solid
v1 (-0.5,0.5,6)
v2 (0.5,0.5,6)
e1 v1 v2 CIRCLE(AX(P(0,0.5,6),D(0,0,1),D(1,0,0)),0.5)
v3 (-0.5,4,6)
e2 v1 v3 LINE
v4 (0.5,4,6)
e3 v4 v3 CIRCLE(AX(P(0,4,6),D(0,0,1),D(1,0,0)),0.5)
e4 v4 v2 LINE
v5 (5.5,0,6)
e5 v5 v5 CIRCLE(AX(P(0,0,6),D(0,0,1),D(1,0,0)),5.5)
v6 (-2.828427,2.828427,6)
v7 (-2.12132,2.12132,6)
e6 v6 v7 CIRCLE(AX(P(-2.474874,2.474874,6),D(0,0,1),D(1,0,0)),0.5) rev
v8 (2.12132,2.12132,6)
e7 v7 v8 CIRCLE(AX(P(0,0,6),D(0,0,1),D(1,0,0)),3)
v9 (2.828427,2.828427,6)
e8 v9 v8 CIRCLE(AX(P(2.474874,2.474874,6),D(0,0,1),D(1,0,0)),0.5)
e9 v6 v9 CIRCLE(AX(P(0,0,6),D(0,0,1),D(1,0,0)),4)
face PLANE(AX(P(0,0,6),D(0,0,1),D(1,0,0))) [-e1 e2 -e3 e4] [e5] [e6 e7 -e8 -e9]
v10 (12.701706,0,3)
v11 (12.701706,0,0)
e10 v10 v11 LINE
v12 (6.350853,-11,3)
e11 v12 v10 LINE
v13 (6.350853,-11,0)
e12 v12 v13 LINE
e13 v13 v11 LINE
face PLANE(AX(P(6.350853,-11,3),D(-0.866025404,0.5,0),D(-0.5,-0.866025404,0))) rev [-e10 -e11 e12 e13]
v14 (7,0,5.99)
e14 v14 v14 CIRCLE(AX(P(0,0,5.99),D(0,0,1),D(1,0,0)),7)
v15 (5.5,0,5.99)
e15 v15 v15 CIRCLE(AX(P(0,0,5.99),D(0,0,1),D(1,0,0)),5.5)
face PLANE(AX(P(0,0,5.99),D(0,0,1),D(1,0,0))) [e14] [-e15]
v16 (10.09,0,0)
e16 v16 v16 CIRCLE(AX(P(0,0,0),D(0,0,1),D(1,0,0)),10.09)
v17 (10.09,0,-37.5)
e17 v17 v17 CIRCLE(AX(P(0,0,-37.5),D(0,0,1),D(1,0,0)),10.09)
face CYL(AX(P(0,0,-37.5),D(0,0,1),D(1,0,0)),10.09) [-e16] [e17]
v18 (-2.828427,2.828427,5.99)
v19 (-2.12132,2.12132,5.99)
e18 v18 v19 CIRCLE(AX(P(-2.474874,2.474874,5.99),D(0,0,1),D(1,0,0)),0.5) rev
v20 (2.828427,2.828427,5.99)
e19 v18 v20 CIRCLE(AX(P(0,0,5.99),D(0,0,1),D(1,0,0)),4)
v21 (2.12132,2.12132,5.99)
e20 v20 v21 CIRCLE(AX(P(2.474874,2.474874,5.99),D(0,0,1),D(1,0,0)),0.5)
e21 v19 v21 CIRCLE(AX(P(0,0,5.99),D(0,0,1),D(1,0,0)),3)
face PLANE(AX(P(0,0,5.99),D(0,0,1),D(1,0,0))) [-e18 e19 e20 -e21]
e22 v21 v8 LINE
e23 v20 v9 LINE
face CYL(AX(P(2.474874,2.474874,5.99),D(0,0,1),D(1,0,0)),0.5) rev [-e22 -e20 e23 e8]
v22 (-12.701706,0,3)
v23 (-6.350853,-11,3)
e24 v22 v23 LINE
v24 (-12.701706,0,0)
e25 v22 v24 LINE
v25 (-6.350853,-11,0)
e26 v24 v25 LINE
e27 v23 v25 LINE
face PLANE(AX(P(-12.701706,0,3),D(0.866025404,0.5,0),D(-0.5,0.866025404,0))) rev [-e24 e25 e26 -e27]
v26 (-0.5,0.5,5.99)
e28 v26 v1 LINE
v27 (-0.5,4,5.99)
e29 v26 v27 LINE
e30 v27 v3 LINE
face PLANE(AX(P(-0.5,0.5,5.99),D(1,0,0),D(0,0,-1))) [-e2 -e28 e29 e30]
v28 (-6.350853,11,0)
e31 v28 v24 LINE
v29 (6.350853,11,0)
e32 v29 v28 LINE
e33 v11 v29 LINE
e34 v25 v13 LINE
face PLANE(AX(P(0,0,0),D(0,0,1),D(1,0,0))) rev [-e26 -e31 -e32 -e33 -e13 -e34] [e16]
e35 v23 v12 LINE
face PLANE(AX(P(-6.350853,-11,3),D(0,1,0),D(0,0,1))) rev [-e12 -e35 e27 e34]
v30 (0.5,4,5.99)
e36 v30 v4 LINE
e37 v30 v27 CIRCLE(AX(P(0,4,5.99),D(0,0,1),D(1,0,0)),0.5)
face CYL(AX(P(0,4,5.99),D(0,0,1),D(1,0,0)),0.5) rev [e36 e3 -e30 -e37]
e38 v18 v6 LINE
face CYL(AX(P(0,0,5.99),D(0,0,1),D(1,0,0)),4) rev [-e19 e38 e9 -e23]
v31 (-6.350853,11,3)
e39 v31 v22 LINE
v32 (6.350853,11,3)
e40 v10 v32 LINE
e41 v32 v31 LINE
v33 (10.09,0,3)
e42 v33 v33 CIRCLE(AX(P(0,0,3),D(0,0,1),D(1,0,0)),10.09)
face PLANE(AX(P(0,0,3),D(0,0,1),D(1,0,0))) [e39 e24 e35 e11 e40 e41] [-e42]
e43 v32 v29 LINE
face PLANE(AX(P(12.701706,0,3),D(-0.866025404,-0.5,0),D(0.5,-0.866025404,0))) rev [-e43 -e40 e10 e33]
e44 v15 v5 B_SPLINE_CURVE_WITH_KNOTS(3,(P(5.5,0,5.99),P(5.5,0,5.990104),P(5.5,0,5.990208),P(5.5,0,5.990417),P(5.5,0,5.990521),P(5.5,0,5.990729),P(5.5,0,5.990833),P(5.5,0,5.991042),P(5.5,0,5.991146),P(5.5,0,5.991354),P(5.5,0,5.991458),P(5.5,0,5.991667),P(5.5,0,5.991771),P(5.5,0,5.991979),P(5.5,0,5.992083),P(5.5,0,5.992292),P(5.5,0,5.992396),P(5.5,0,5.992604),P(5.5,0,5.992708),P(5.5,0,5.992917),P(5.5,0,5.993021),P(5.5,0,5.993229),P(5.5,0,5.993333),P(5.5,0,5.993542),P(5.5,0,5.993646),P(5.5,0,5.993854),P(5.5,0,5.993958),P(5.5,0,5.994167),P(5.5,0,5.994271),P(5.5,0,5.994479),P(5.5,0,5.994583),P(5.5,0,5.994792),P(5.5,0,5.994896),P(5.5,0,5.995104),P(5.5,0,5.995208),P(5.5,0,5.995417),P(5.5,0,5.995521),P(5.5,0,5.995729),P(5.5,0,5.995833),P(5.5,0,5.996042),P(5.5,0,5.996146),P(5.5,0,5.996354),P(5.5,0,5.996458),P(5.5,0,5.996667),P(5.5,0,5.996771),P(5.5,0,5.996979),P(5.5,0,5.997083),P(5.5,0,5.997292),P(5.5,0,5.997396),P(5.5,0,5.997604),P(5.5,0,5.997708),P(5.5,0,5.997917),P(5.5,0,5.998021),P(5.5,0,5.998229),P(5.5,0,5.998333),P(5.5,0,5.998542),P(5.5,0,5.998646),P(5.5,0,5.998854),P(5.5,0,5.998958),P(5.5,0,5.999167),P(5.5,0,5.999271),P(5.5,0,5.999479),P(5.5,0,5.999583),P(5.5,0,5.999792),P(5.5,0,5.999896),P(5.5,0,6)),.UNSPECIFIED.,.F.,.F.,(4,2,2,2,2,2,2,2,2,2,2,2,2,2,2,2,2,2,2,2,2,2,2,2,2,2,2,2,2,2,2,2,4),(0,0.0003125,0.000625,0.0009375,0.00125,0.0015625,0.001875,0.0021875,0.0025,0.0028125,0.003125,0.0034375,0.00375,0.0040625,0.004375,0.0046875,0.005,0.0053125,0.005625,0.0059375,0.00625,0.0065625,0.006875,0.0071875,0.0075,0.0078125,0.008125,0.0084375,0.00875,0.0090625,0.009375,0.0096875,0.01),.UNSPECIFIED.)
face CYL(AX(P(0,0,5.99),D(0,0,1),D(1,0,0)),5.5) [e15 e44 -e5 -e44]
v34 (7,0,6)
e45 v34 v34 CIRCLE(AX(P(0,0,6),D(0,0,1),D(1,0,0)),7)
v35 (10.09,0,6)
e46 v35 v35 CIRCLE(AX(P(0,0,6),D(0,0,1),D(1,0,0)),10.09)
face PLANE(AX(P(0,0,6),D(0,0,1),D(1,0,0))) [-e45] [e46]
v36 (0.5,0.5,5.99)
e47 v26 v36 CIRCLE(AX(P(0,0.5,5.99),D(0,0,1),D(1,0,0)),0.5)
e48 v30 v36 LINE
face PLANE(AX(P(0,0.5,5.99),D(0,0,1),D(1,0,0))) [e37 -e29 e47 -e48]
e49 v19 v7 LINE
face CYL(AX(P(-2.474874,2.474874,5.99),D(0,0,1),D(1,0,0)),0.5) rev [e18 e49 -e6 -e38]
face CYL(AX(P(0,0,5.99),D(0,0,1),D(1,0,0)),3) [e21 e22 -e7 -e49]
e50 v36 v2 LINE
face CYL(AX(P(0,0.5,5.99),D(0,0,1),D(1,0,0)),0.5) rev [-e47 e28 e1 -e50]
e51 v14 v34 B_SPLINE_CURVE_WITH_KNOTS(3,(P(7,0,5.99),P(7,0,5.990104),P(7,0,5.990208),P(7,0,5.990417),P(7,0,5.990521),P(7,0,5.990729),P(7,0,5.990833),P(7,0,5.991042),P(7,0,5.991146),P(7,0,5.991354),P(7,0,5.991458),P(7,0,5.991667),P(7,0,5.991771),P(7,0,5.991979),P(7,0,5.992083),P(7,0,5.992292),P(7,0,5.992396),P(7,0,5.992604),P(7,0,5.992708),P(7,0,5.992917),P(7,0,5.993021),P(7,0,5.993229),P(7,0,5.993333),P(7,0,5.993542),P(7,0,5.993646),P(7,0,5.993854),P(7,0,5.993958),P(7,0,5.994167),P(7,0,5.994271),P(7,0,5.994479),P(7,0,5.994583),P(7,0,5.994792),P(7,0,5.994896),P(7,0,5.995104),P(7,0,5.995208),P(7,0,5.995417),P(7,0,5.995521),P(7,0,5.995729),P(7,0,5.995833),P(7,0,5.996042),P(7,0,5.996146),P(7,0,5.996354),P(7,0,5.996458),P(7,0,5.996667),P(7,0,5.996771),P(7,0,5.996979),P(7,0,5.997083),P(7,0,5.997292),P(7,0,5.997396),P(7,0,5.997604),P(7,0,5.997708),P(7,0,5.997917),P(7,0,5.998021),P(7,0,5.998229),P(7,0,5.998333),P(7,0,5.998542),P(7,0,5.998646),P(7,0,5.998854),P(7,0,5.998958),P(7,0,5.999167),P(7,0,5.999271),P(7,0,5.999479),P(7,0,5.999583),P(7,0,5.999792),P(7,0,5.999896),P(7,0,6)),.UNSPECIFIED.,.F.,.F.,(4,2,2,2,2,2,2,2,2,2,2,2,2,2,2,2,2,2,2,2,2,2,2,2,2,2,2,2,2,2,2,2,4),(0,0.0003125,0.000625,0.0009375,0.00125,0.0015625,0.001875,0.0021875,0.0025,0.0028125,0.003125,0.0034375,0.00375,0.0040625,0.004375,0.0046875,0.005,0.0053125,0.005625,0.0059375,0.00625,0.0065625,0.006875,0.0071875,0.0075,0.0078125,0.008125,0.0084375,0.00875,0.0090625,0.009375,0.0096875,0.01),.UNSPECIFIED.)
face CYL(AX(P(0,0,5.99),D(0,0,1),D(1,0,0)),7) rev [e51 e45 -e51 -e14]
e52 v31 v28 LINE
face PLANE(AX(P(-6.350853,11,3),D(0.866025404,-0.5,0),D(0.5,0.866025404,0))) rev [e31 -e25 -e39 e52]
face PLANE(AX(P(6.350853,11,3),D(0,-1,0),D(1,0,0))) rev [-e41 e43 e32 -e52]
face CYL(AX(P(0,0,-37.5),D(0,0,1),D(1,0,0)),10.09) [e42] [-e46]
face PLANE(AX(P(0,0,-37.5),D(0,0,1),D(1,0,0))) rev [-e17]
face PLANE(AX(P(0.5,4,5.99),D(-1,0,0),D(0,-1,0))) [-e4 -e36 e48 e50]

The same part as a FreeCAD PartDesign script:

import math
import FreeCAD as App
import Part
import Sketcher
Q = App.Units.Quantity

doc = App.newDocument("Part")
body = doc.addObject("PartDesign::Body", "Body")

sketch1 = body.newObject("Sketcher::SketchObject", "Sketch")
sketch1.AttachmentSupport = (doc.getObject("XY_Plane"), [""])
sketch1.MapMode = "FlatFace"
sketch1.addGeometry(Part.LineSegment(App.Vector(12.701706, 0, 0), App.Vector(6.350853, 11, 0)), False)
sketch1.addGeometry(Part.LineSegment(App.Vector(6.350853, 11, 0), App.Vector(-6.350853, 11, 0)), False)
sketch1.addGeometry(Part.LineSegment(App.Vector(-6.350853, 11, 0), App.Vector(-12.701706, 0, 0)), False)
sketch1.addGeometry(Part.LineSegment(App.Vector(-12.701706, 0, 0), App.Vector(-6.350853, -11, 0)), False)
sketch1.addGeometry(Part.LineSegment(App.Vector(-6.350853, -11, 0), App.Vector(6.350853, -11, 0)), False)
sketch1.addGeometry(Part.LineSegment(App.Vector(6.350853, -11, 0), App.Vector(12.701706, 0, 0)), False)
sketch1.addConstraint(Sketcher.Constraint("Coincident", 0, 2, 1, 1))
sketch1.addConstraint(Sketcher.Constraint("Coincident", 1, 2, 2, 1))
sketch1.addConstraint(Sketcher.Constraint("Coincident", 2, 2, 3, 1))
sketch1.addConstraint(Sketcher.Constraint("Coincident", 3, 2, 4, 1))
sketch1.addConstraint(Sketcher.Constraint("Coincident", 4, 2, 5, 1))
sketch1.addConstraint(Sketcher.Constraint("Coincident", 5, 2, 0, 1))
sketch1.addConstraint(Sketcher.Constraint("Horizontal", 1))
sketch1.addConstraint(Sketcher.Constraint("Horizontal", 4))
sketch1.addConstraint(Sketcher.Constraint("Symmetric", 0, 2, 3, 2, -1, 1))
sketch1.addConstraint(Sketcher.Constraint("Symmetric", 2, 2, 5, 2, -1, 1))
sketch1.addConstraint(Sketcher.Constraint("PointOnObject", 2, 2, -1))
sketch1.addConstraint(Sketcher.Constraint("Parallel", 2, 5))
sketch1.addConstraint(Sketcher.Constraint("Vertical", 1, 2, 3, 2))
sketch1.addConstraint(Sketcher.Constraint("Angle", 0, Q("120 deg")))
sketch1.addConstraint(Sketcher.Constraint("DistanceY", -1, 1, 0, 2, 11.0))
sketch1.addConstraint(Sketcher.Constraint("DistanceX", 1, 2, 1, 1, 12.701706))
pad1 = body.newObject("PartDesign::Pad", "Pad")
pad1.Profile = sketch1
pad1.Length = 3

sketch2 = body.newObject("Sketcher::SketchObject", "Sketch001")
sketch2.AttachmentSupport = (doc.getObject("XY_Plane"), [""])
sketch2.MapMode = "FlatFace"
sketch2.AttachmentOffset = App.Placement(App.Vector(0, 0, 3), App.Rotation())
sketch2.addGeometry(Part.Circle(App.Vector(0, 0, 0), App.Vector(0, 0, 1), 10.09), False)
sketch2.addConstraint(Sketcher.Constraint("Coincident", 0, 3, -1, 1))
sketch2.addConstraint(Sketcher.Constraint("Diameter", 0, 20.18))
pad2 = body.newObject("PartDesign::Pad", "Pad001")
pad2.Profile = sketch2
pad2.Type = "TwoLengths"
pad2.Length = 3
pad2.Length2 = 40.5

sketch3 = body.newObject("Sketcher::SketchObject", "Sketch002")
sketch3.AttachmentSupport = (doc.getObject("XY_Plane"), [""])
sketch3.MapMode = "FlatFace"
sketch3.AttachmentOffset = App.Placement(App.Vector(0, 0, 6), App.Rotation())
sketch3.addGeometry(Part.Circle(App.Vector(0, 0, 0), App.Vector(0, 0, 1), 7), False)
sketch3.addGeometry(Part.Circle(App.Vector(0, 0, 0), App.Vector(0, 0, 1), 5.5), False)
sketch3.addGeometry(Part.ArcOfCircle(Part.Circle(App.Vector(-2.474874, 2.474874, 0), App.Vector(0, 0, 1), 0.5), math.radians(-45), math.radians(135)), False)
sketch3.addGeometry(Part.ArcOfCircle(Part.Circle(App.Vector(0, 0, 0), App.Vector(0, 0, 1), 4), math.radians(135), math.radians(405)), False)
sketch3.addGeometry(Part.ArcOfCircle(Part.Circle(App.Vector(2.474874, 2.474874, 0), App.Vector(0, 0, 1), 0.5), math.radians(45), math.radians(225)), False)
sketch3.addGeometry(Part.ArcOfCircle(Part.Circle(App.Vector(0, 0, 0), App.Vector(0, 0, 1), 3), math.radians(135), math.radians(405)), False)
sketch3.addGeometry(Part.LineSegment(App.Vector(-0.5, 4, 0), App.Vector(-0.5, 0.5, 0)), False)
sketch3.addGeometry(Part.ArcOfCircle(Part.Circle(App.Vector(0, 0.5, 0), App.Vector(0, 0, 1), 0.5), math.radians(180), math.radians(360)), False)
sketch3.addGeometry(Part.LineSegment(App.Vector(0.5, 0.5, 0), App.Vector(0.5, 4, 0)), False)
sketch3.addGeometry(Part.ArcOfCircle(Part.Circle(App.Vector(0, 4, 0), App.Vector(0, 0, 1), 0.5), math.radians(0), math.radians(180)), False)
sketch3.addConstraint(Sketcher.Constraint("Tangent", 2, 2, 3, 1))
sketch3.addConstraint(Sketcher.Constraint("Tangent", 3, 2, 4, 1))
sketch3.addConstraint(Sketcher.Constraint("Tangent", 4, 2, 5, 2))
sketch3.addConstraint(Sketcher.Constraint("Tangent", 5, 1, 2, 1))
sketch3.addConstraint(Sketcher.Constraint("Tangent", 6, 2, 7, 1))
sketch3.addConstraint(Sketcher.Constraint("Tangent", 7, 2, 8, 1))
sketch3.addConstraint(Sketcher.Constraint("Tangent", 8, 2, 9, 1))
sketch3.addConstraint(Sketcher.Constraint("Tangent", 9, 2, 6, 1))
sketch3.addConstraint(Sketcher.Constraint("Vertical", 6))
sketch3.addConstraint(Sketcher.Constraint("Vertical", 8))
sketch3.addConstraint(Sketcher.Constraint("Coincident", 0, 3, -1, 1))
sketch3.addConstraint(Sketcher.Constraint("Coincident", 1, 3, -1, 1))
sketch3.addConstraint(Sketcher.Constraint("Coincident", 3, 3, -1, 1))
sketch3.addConstraint(Sketcher.Constraint("Coincident", 5, 3, -1, 1))
sketch3.addConstraint(Sketcher.Constraint("Equal", 4, 7))
sketch3.addConstraint(Sketcher.Constraint("PointOnObject", 7, 3, -2))
sketch3.addConstraint(Sketcher.Constraint("Horizontal", 2, 3, 4, 3))
sketch3.addConstraint(Sketcher.Constraint("Diameter", 0, 14.0))
sketch3.addConstraint(Sketcher.Constraint("Diameter", 1, 11.0))
sketch3.addConstraint(Sketcher.Constraint("Radius", 3, 4.0))
sketch3.addConstraint(Sketcher.Constraint("Radius", 5, 3.0))
sketch3.addConstraint(Sketcher.Constraint("DistanceY", 6, 2, 6, 1, 3.5))
sketch3.addConstraint(Sketcher.Constraint("DistanceY", -1, 1, 9, 3, 4.0))
sketch3.addConstraint(Sketcher.Constraint("DistanceX", -1, 1, 4, 2, 2.12132))
pocket1 = body.newObject("PartDesign::Pocket", "Pocket")
pocket1.Profile = sketch3
pocket1.Length = 0.01

doc.recompute()
